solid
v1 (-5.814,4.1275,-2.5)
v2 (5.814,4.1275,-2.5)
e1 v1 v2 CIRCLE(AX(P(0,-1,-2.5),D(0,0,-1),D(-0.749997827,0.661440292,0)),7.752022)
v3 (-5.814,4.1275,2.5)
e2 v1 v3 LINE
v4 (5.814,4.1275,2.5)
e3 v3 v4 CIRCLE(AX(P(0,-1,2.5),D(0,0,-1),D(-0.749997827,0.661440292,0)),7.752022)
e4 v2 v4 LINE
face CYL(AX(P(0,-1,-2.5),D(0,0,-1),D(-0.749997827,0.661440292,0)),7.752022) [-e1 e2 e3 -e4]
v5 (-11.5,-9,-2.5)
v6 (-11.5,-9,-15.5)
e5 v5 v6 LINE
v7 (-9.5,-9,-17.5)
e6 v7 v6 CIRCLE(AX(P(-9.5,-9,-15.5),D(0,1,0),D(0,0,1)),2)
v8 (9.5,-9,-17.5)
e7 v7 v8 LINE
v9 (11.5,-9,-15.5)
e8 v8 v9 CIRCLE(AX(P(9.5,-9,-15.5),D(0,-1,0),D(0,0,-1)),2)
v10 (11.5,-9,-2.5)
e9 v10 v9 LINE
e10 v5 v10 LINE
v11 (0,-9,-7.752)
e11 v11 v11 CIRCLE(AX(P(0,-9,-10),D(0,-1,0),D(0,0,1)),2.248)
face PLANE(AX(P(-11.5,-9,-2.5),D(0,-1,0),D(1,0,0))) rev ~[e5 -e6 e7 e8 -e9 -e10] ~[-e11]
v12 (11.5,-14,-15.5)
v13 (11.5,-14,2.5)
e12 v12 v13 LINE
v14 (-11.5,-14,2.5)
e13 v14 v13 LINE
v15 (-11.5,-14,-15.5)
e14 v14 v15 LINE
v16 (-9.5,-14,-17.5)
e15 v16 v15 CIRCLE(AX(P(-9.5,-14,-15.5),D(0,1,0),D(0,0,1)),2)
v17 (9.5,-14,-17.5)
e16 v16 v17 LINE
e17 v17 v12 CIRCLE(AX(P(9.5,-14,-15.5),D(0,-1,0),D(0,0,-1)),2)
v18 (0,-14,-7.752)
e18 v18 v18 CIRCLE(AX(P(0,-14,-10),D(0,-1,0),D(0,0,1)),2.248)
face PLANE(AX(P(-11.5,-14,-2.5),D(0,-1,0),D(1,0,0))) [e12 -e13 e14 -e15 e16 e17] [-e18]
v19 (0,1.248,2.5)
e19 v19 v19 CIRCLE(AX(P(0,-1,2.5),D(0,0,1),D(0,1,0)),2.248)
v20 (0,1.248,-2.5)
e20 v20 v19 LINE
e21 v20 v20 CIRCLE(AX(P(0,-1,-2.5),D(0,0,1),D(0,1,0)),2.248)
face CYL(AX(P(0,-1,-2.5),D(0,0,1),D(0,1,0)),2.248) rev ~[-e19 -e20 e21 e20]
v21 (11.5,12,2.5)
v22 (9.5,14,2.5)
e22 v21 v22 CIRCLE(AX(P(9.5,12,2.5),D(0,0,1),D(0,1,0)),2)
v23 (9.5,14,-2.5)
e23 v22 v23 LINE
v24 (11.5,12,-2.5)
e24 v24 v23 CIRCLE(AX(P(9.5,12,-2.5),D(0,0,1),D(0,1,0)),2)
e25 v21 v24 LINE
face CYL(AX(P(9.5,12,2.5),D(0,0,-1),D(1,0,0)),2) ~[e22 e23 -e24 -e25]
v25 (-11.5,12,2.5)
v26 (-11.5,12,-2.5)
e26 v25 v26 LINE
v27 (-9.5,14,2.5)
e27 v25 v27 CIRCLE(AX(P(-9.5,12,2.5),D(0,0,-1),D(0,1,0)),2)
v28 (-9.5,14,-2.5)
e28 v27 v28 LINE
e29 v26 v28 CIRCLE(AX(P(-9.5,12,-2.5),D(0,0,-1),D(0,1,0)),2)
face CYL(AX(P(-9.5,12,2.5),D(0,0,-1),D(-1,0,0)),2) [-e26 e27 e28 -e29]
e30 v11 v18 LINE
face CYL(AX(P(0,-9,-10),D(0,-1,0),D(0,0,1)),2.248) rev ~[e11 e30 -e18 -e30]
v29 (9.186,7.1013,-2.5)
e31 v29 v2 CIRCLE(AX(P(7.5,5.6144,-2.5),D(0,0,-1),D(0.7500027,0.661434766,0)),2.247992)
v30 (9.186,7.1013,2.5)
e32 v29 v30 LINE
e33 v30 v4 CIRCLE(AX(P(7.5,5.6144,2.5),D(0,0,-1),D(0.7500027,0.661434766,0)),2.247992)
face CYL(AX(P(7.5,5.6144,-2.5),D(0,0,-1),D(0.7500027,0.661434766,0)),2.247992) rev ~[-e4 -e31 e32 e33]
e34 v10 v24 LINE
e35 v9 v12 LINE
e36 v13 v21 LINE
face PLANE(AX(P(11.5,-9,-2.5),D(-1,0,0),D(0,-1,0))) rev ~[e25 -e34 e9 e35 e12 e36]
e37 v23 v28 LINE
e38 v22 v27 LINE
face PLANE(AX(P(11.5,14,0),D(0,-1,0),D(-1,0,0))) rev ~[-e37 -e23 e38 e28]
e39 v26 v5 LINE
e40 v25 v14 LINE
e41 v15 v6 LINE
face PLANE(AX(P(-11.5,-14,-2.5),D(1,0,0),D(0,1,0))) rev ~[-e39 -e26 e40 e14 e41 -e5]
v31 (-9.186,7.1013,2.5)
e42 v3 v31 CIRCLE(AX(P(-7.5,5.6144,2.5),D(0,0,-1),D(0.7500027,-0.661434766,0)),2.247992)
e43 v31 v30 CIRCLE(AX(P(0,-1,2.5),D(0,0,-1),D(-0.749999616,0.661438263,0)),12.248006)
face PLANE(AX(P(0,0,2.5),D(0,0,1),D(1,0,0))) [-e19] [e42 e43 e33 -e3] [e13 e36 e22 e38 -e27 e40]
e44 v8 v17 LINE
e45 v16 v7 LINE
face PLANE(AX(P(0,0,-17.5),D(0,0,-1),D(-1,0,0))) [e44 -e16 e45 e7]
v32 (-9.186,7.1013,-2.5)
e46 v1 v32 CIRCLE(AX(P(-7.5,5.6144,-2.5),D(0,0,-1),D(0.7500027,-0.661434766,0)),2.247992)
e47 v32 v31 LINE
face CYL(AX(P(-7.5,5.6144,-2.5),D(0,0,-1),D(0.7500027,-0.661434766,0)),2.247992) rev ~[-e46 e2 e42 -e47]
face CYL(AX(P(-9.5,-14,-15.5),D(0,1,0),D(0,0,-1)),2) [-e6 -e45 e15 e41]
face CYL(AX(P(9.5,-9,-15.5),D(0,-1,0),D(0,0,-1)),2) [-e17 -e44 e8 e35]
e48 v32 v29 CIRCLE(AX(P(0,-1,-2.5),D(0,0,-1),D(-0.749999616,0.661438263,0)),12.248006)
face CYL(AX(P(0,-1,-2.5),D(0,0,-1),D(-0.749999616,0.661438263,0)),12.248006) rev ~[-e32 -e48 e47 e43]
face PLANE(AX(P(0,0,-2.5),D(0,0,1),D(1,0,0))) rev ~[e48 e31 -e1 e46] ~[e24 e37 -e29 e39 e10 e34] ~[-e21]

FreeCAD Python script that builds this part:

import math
import FreeCAD as App
import Part
import Sketcher
Q = App.Units.Quantity


def edges_at(feature, points):
    """Names of the edges that pass closest to the given points."""
    edges = feature.Shape.Edges
    near = lambda p: min(range(len(edges)), key=lambda i: edges[i].distToShape(Part.Vertex(*p))[0])
    return sorted({f"Edge{near(p) + 1}" for p in points})

doc = App.newDocument("Part")
body = doc.addObject("PartDesign::Body", "Body")

sketch1 = doc.addObject("Sketcher::SketchObject", "Sketch")
body.addObject(sketch1)
sketch1.AttachmentSupport = (doc.XY_Plane, [""])
sketch1.MapMode = "FlatFace"
sketch1.addGeometry(Part.LineSegment(App.Vector(-12, 14, 0), App.Vector(-12, -14, 0)), False)
sketch1.addGeometry(Part.LineSegment(App.Vector(-12, -14, 0), App.Vector(12, -14, 0)), False)
sketch1.addGeometry(Part.LineSegment(App.Vector(12, -14, 0), App.Vector(12, 14, 0)), False)
sketch1.addGeometry(Part.LineSegment(App.Vector(12, 14, 0), App.Vector(-12, 14, 0)), False)
sketch1.addConstraint(Sketcher.Constraint("Coincident", 0, 2, 1, 1))
sketch1.addConstraint(Sketcher.Constraint("Coincident", 1, 2, 2, 1))
sketch1.addConstraint(Sketcher.Constraint("Coincident", 2, 2, 3, 1))
sketch1.addConstraint(Sketcher.Constraint("Coincident", 3, 2, 0, 1))
sketch1.addConstraint(Sketcher.Constraint("Vertical", 0))
sketch1.addConstraint(Sketcher.Constraint("Horizontal", 1))
sketch1.addConstraint(Sketcher.Constraint("Vertical", 2))
sketch1.addConstraint(Sketcher.Constraint("Horizontal", 3))
sketch1.addConstraint(Sketcher.Constraint("Symmetric", 0, 2, 2, 2, -1, 1))
sketch1.addConstraint(Sketcher.Constraint("DistanceX", 1, 1, 1, 2, Q("23 mm")))
sketch1.addConstraint(Sketcher.Constraint("DistanceY", 0, 2, 0, 1, Q("28 mm")))
pad1 = doc.addObject("PartDesign::Pad", "Pad")
body.addObject(pad1)
pad1.Profile = sketch1
pad1.Length = 5
pad1.Midplane = True

sketch2 = doc.addObject("Sketcher::SketchObject", "Sketch001")
body.addObject(sketch2)
sketch2.AttachmentSupport = (doc.XY_Plane, [""])
sketch2.MapMode = "FlatFace"
sketch2.AttachmentOffset = App.Placement(App.Vector(0, 0, -2.5), App.Rotation())
sketch2.addGeometry(Part.LineSegment(App.Vector(12, -14, 0), App.Vector(-12, -14, 0)), False)
sketch2.addGeometry(Part.LineSegment(App.Vector(-12, -14, 0), App.Vector(-12, -9, 0)), False)
sketch2.addGeometry(Part.LineSegment(App.Vector(-12, -9, 0), App.Vector(12, -9, 0)), False)
sketch2.addGeometry(Part.LineSegment(App.Vector(12, -9, 0), App.Vector(12, -14, 0)), False)
sketch2.addConstraint(Sketcher.Constraint("Coincident", 0, 2, 1, 1))
sketch2.addConstraint(Sketcher.Constraint("Coincident", 1, 2, 2, 1))
sketch2.addConstraint(Sketcher.Constraint("Coincident", 2, 2, 3, 1))
sketch2.addConstraint(Sketcher.Constraint("Coincident", 3, 2, 0, 1))
sketch2.addConstraint(Sketcher.Constraint("Horizontal", 0))
sketch2.addConstraint(Sketcher.Constraint("Vertical", 1))
sketch2.addConstraint(Sketcher.Constraint("Horizontal", 2))
sketch2.addConstraint(Sketcher.Constraint("Vertical", 3))
sketch2.addConstraint(Sketcher.Constraint("DistanceY", 1, 1, 1, 2, Q("5 mm")))
sketch2.addConstraint(Sketcher.Constraint("DistanceX", 0, 2, 0, 1, Q("23 mm")))
sketch2.addConstraint(Sketcher.Constraint("DistanceY", 0, 2, -1, 1, Q("14 mm")))
sketch2.addConstraint(Sketcher.Constraint("DistanceX", 0, 2, -1, 1, Q("11.5 mm")))
pad2 = doc.addObject("PartDesign::Pad", "Pad001")
body.addObject(pad2)
pad2.Profile = sketch2
pad2.Length = 15
pad2.Reversed = True

sketch3 = doc.addObject("Sketcher::SketchObject", "Sketch002")
body.addObject(sketch3)
sketch3.AttachmentSupport = (doc.XZ_Plane, [""])
sketch3.MapMode = "FlatFace"
sketch3.AttachmentOffset = App.Placement(App.Vector(0, 0, 9), App.Rotation())
sketch3.addGeometry(Part.Circle(App.Vector(0, -10, 0), App.Vector(0, 0, 1), 2.2), False)
sketch3.addConstraint(Sketcher.Constraint("PointOnObject", 0, 3, -2))
sketch3.addConstraint(Sketcher.Constraint("Diameter", 0, Q("4.496 mm")))
sketch3.addConstraint(Sketcher.Constraint("DistanceY", 0, 3, -1, 1, Q("10 mm")))
doc.recompute()
hole = doc.addObject("PartDesign::Hole", "Hole")
body.addObject(hole)
hole.Profile = sketch3
hole.ThreadType = "None"
hole.Diameter = 4.496
hole.DepthType = "ThroughAll"
hole.Reversed = True

sketch4 = doc.addObject("Sketcher::SketchObject", "Sketch003")
body.addObject(sketch4)
sketch4.AttachmentSupport = (doc.XY_Plane, [""])
sketch4.MapMode = "FlatFace"
sketch4.AttachmentOffset = App.Placement(App.Vector(0, 0, -2.5), App.Rotation())
sketch4.addGeometry(Part.Circle(App.Vector(0, -1, 0), App.Vector(0, 0, 1), 2.2), False)
sketch4.addConstraint(Sketcher.Constraint("PointOnObject", 0, 3, -2))
sketch4.addConstraint(Sketcher.Constraint("Diameter", 0, Q("4.496 mm")))
sketch4.addConstraint(Sketcher.Constraint("DistanceY", 0, 3, -1, 1, Q("1 mm")))
doc.recompute()
hole2 = doc.addObject("PartDesign::Hole", "Hole001")
body.addObject(hole2)
hole2.Profile = sketch4
hole2.ThreadType = "None"
hole2.Diameter = 4.496
hole2.DepthType = "ThroughAll"
hole2.Reversed = True

sketch5 = doc.addObject("Sketcher::SketchObject", "Sketch004")
body.addObject(sketch5)
sketch5.AttachmentSupport = (doc.XY_Plane, [""])
sketch5.MapMode = "FlatFace"
sketch5.AttachmentOffset = App.Placement(App.Vector(0, 0, -2.5), App.Rotation())
sketch5.addGeometry(Part.ArcOfCircle(Part.Circle(App.Vector(0, -1, 0), App.Vector(0, 0, 1), 12.2), math.radians(41), math.radians(139)), False)
sketch5.addGeometry(Part.ArcOfCircle(Part.Circle(App.Vector(7.5, 5.6, 0), App.Vector(0, 0, 1), 2.2), math.radians(-139), math.radians(41)), False)
sketch5.addGeometry(Part.ArcOfCircle(Part.Circle(App.Vector(0, -1, 0), App.Vector(0, 0, 1), 7.8), math.radians(41), math.radians(139)), False)
sketch5.addGeometry(Part.ArcOfCircle(Part.Circle(App.Vector(-7.5, 5.6, 0), App.Vector(0, 0, 1), 2.2), math.radians(139), math.radians(319)), False)
sketch5.addConstraint(Sketcher.Constraint("Tangent", 0, 1, 1, 2))
sketch5.addConstraint(Sketcher.Constraint("Tangent", 1, 1, 2, 1))
sketch5.addConstraint(Sketcher.Constraint("Tangent", 2, 2, 3, 2))
sketch5.addConstraint(Sketcher.Constraint("Tangent", 3, 1, 0, 2))
sketch5.addConstraint(Sketcher.Constraint("Coincident", 2, 3, 0, 3))
sketch5.addConstraint(Sketcher.Constraint("Symmetric", 1, 3, 3, 3, -2))
sketch5.addConstraint(Sketcher.Constraint("Radius", 1, Q("2.248 mm")))
sketch5.addConstraint(Sketcher.Constraint("DistanceY", 0, 3, -1, 1, Q("1 mm")))
sketch5.addConstraint(Sketcher.Constraint("Radius", 0, Q("12.248 mm")))
sketch5.addConstraint(Sketcher.Constraint("DistanceX", 3, 3, 1, 3, Q("15 mm")))
pocket1 = doc.addObject("PartDesign::Pocket", "Pocket")
body.addObject(pocket1)
pocket1.Profile = sketch5
pocket1.Type = "ThroughAll"
pocket1.Reversed = True
doc.recompute()

fillet = doc.addObject("PartDesign::Fillet", "Fillet")
body.addObject(fillet)
fillet.Base = (pocket1, edges_at(pocket1, [
    (11.5, 14, 0),
    (-11.5, 14, 0),
    (11.5, -11.5, -17.5),
    (-11.5, -11.5, -17.5),
]))
fillet.Radius = 2

doc.recompute()
